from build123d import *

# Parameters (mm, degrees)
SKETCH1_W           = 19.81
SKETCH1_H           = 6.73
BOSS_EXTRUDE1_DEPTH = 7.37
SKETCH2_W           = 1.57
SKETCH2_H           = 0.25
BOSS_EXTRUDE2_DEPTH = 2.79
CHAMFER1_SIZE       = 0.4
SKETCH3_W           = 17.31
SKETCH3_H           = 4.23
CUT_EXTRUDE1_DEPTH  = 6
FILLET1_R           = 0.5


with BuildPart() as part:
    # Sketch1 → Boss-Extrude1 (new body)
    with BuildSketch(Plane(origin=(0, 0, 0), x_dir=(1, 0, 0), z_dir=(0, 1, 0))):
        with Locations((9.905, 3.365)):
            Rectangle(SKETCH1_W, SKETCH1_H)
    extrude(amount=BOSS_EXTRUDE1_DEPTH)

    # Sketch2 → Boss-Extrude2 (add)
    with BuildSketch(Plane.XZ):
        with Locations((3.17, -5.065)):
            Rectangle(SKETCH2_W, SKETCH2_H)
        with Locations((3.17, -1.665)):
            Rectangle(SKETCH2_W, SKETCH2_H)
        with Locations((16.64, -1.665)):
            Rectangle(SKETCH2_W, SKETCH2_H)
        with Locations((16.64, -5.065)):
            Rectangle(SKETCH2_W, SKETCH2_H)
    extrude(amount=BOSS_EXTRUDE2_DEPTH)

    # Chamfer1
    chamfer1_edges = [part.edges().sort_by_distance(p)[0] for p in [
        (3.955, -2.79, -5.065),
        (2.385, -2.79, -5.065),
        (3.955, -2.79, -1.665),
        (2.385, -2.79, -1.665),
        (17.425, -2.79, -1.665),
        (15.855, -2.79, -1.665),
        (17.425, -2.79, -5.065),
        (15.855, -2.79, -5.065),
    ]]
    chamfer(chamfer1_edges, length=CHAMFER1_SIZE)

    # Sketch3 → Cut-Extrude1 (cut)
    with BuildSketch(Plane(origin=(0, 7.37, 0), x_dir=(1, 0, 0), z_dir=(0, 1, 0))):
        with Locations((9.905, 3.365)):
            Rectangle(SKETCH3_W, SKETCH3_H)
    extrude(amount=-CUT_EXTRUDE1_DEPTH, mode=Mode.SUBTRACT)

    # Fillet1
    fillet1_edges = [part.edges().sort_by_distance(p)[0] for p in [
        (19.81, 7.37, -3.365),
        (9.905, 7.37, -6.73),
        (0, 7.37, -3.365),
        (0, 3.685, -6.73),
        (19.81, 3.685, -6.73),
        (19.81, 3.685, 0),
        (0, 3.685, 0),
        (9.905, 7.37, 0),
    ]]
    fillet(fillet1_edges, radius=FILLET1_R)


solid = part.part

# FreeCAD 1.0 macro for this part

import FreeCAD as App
import Part
import Sketcher
Q = App.Units.Quantity


def edges_at(feature, points):
    """Names of the edges that pass closest to the given points."""
    edges = feature.Shape.Edges
    near = lambda p: min(range(len(edges)), key=lambda i: edges[i].distToShape(Part.Vertex(*p))[0])
    return sorted({f"Edge{near(p) + 1}" for p in points})


def add_polygon(sketch, points):
    """Adds a closed chain of lines whose ends are joined by coincident constraints."""
    first, n = sketch.GeometryCount, len(points)
    for a, b in zip(points, points[1:] + points[:1]):
        sketch.addGeometry(Part.LineSegment(App.Vector(*a, 0), App.Vector(*b, 0)), False)
    for i in range(n):
        sketch.addConstraint(Sketcher.Constraint("Coincident", first + i, 2, first + (i + 1) % n, 1))

doc = App.newDocument("Part")
params = doc.addObject("Spreadsheet::Sheet", "Params")
for row, (alias, value) in enumerate([
    ("sketch1_width", "19.81 mm"),
    ("sketch1_height", "6.73 mm"),
    ("pad1_length", "7.37 mm"),
    ("sketch2_width", "1.57 mm"),
    ("sketch2_height", "0.25 mm"),
    ("pad2_length", "2.79 mm"),
    ("chamfer_size", "0.4 mm"),
    ("sketch3_width", "17.31 mm"),
    ("sketch3_height", "4.23 mm"),
    ("pocket1_length", "6 mm"),
    ("fillet_radius", "0.5 mm"),
], start=1):
    params.set(f"A{row}", alias)
    params.set(f"B{row}", "=" + value)
    params.setAlias(f"B{row}", alias)

body = doc.addObject("PartDesign::Body", "Body")

# Sketch on XZ plane
sketch1 = body.newObject("Sketcher::SketchObject", "Sketch")
sketch1.AttachmentSupport = (doc.getObject("XZ_Plane"), [""])
sketch1.MapMode = "FlatFace"
add_polygon(sketch1, [(0, -7), (0, 0), (20, 0), (20, -7)])  # lines 0-3
sketch1.addConstraint([
    Sketcher.Constraint("Vertical", 0),
    Sketcher.Constraint("Horizontal", 1),
    Sketcher.Constraint("Vertical", 2),
    Sketcher.Constraint("Horizontal", 3),
    Sketcher.Constraint("Coincident", 0, 2, -1, 1),
    Sketcher.Constraint("DistanceX", 1, 1, 1, 2, Q("19.81 mm")),
    Sketcher.Constraint("DistanceY", 0, 1, 0, 2, Q("6.73 mm")),
])
sketch1.setExpression("Constraints[9]", "Params.sketch1_width")
sketch1.setExpression("Constraints[10]", "Params.sketch1_height")
pad1 = body.newObject("PartDesign::Pad", "Pad")
pad1.Profile = sketch1
pad1.setExpression("Length", "Params.pad1_length")
pad1.Reversed = True

# Sketch on XZ plane
sketch2 = body.newObject("Sketcher::SketchObject", "Sketch001")
sketch2.AttachmentSupport = (doc.getObject("XZ_Plane"), [""])
sketch2.MapMode = "FlatFace"
add_polygon(sketch2, [(2.38, -4.94), (2.38, -5.19), (3.96, -5.19), (3.96, -4.94)])  # lines 0-3
add_polygon(sketch2, [(2.38, -1.54), (2.38, -1.79), (3.96, -1.79), (3.96, -1.54)])  # lines 4-7
add_polygon(sketch2, [(15.86, -1.54), (15.86, -1.79), (17.43, -1.79), (17.43, -1.54)])  # lines 8-11
add_polygon(sketch2, [(15.86, -4.94), (15.86, -5.19), (17.43, -5.19), (17.43, -4.94)])  # lines 12-15
sketch2.addConstraint([
    Sketcher.Constraint("Vertical", 0),
    Sketcher.Constraint("Horizontal", 1),
    Sketcher.Constraint("Vertical", 2),
    Sketcher.Constraint("Horizontal", 3),
    Sketcher.Constraint("Vertical", 4),
    Sketcher.Constraint("Horizontal", 5),
    Sketcher.Constraint("Vertical", 6),
    Sketcher.Constraint("Horizontal", 7),
    Sketcher.Constraint("Vertical", 8),
    Sketcher.Constraint("Horizontal", 9),
    Sketcher.Constraint("Vertical", 10),
    Sketcher.Constraint("Horizontal", 11),
    Sketcher.Constraint("Vertical", 12),
    Sketcher.Constraint("Horizontal", 13),
    Sketcher.Constraint("Vertical", 14),
    Sketcher.Constraint("Horizontal", 15),
    Sketcher.Constraint("Horizontal", 5, 2, 8, 2),
    Sketcher.Constraint("Horizontal", 7, 2, 10, 2),
    Sketcher.Constraint("Horizontal", 1, 2, 12, 2),
    Sketcher.Constraint("Horizontal", 3, 2, 14, 2),
    Sketcher.Constraint("Vertical", 3, 2, 4, 2),
    Sketcher.Constraint("Vertical", 2, 2, 5, 2),
    Sketcher.Constraint("Vertical", 11, 2, 12, 2),
    Sketcher.Constraint("Vertical", 10, 2, 13, 2),
    Sketcher.Constraint("Equal", 7, 9),
    Sketcher.Constraint("Equal", 2, 4),
    Sketcher.Constraint("DistanceX", 1, 1, 1, 2, Q("1.57 mm")),
    Sketcher.Constraint("DistanceY", 0, 2, 0, 1, Q("0.25 mm")),
    Sketcher.Constraint("DistanceY", 0, 2, 4, 2, Q("3.4 mm")),
    Sketcher.Constraint("DistanceX", 5, 2, 8, 2, Q("11.9 mm")),
    Sketcher.Constraint("DistanceY", 0, 2, -1, 1, Q("5.19 mm")),
    Sketcher.Constraint("DistanceX", -1, 1, 0, 2, Q("2.385 mm")),
])
sketch2.setExpression("Constraints[42]", "Params.sketch2_width")
sketch2.setExpression("Constraints[43]", "Params.sketch2_height")
pad2 = body.newObject("PartDesign::Pad", "Pad001")
pad2.Profile = sketch2
pad2.setExpression("Length", "Params.pad2_length")
doc.recompute()

chamfer = body.newObject("PartDesign::Chamfer", "Chamfer")
chamfer.Base = (pad2, edges_at(pad2, [
    (3.955, -2.79, -5.065),
    (2.385, -2.79, -5.065),
    (3.955, -2.79, -1.665),
    (2.385, -2.79, -1.665),
    (17.425, -2.79, -1.665),
    (15.855, -2.79, -1.665),
    (17.425, -2.79, -5.065),
    (15.855, -2.79, -5.065),
]))
chamfer.setExpression("Size", "Params.chamfer_size")

# Sketch on XZ plane
sketch3 = body.newObject("Sketcher::SketchObject", "Sketch002")
sketch3.AttachmentSupport = (doc.getObject("XZ_Plane"), [""])
sketch3.MapMode = "FlatFace"
sketch3.AttachmentOffset = App.Placement(App.Vector(0, 0, -7.37), App.Rotation())
add_polygon(sketch3, [(1.2, -5.5), (1.2, -1.2), (18.6, -1.2), (18.6, -5.5)])  # lines 0-3
sketch3.addConstraint([
    Sketcher.Constraint("Vertical", 0),
    Sketcher.Constraint("Horizontal", 1),
    Sketcher.Constraint("Vertical", 2),
    Sketcher.Constraint("Horizontal", 3),
    Sketcher.Constraint("DistanceX", 1, 1, 1, 2, Q("17.31 mm")),
    Sketcher.Constraint("DistanceY", 0, 1, 0, 2, Q("4.23 mm")),
    Sketcher.Constraint("DistanceX", -1, 1, 0, 2, Q("1.25 mm")),
    Sketcher.Constraint("DistanceY", 0, 2, -1, 1, Q("1.25 mm")),
])
sketch3.setExpression("Constraints[8]", "Params.sketch3_width")
sketch3.setExpression("Constraints[9]", "Params.sketch3_height")
pocket1 = body.newObject("PartDesign::Pocket", "Pocket")
pocket1.Profile = sketch3
pocket1.setExpression("Length", "Params.pocket1_length")
pocket1.Reversed = True
doc.recompute()

fillet = body.newObject("PartDesign::Fillet", "Fillet")
fillet.Base = (pocket1, edges_at(pocket1, [
    (19.81, 7.37, -3.365),
    (9.905, 7.37, -6.73),
    (0, 7.37, -3.365),
    (0, 3.685, -6.73),
    (19.81, 3.685, -6.73),
    (19.81, 3.685, 0),
    (0, 3.685, 0),
    (9.905, 7.37, 0),
]))
fillet.setExpression("Radius", "Params.fillet_radius")

doc.recompute()
